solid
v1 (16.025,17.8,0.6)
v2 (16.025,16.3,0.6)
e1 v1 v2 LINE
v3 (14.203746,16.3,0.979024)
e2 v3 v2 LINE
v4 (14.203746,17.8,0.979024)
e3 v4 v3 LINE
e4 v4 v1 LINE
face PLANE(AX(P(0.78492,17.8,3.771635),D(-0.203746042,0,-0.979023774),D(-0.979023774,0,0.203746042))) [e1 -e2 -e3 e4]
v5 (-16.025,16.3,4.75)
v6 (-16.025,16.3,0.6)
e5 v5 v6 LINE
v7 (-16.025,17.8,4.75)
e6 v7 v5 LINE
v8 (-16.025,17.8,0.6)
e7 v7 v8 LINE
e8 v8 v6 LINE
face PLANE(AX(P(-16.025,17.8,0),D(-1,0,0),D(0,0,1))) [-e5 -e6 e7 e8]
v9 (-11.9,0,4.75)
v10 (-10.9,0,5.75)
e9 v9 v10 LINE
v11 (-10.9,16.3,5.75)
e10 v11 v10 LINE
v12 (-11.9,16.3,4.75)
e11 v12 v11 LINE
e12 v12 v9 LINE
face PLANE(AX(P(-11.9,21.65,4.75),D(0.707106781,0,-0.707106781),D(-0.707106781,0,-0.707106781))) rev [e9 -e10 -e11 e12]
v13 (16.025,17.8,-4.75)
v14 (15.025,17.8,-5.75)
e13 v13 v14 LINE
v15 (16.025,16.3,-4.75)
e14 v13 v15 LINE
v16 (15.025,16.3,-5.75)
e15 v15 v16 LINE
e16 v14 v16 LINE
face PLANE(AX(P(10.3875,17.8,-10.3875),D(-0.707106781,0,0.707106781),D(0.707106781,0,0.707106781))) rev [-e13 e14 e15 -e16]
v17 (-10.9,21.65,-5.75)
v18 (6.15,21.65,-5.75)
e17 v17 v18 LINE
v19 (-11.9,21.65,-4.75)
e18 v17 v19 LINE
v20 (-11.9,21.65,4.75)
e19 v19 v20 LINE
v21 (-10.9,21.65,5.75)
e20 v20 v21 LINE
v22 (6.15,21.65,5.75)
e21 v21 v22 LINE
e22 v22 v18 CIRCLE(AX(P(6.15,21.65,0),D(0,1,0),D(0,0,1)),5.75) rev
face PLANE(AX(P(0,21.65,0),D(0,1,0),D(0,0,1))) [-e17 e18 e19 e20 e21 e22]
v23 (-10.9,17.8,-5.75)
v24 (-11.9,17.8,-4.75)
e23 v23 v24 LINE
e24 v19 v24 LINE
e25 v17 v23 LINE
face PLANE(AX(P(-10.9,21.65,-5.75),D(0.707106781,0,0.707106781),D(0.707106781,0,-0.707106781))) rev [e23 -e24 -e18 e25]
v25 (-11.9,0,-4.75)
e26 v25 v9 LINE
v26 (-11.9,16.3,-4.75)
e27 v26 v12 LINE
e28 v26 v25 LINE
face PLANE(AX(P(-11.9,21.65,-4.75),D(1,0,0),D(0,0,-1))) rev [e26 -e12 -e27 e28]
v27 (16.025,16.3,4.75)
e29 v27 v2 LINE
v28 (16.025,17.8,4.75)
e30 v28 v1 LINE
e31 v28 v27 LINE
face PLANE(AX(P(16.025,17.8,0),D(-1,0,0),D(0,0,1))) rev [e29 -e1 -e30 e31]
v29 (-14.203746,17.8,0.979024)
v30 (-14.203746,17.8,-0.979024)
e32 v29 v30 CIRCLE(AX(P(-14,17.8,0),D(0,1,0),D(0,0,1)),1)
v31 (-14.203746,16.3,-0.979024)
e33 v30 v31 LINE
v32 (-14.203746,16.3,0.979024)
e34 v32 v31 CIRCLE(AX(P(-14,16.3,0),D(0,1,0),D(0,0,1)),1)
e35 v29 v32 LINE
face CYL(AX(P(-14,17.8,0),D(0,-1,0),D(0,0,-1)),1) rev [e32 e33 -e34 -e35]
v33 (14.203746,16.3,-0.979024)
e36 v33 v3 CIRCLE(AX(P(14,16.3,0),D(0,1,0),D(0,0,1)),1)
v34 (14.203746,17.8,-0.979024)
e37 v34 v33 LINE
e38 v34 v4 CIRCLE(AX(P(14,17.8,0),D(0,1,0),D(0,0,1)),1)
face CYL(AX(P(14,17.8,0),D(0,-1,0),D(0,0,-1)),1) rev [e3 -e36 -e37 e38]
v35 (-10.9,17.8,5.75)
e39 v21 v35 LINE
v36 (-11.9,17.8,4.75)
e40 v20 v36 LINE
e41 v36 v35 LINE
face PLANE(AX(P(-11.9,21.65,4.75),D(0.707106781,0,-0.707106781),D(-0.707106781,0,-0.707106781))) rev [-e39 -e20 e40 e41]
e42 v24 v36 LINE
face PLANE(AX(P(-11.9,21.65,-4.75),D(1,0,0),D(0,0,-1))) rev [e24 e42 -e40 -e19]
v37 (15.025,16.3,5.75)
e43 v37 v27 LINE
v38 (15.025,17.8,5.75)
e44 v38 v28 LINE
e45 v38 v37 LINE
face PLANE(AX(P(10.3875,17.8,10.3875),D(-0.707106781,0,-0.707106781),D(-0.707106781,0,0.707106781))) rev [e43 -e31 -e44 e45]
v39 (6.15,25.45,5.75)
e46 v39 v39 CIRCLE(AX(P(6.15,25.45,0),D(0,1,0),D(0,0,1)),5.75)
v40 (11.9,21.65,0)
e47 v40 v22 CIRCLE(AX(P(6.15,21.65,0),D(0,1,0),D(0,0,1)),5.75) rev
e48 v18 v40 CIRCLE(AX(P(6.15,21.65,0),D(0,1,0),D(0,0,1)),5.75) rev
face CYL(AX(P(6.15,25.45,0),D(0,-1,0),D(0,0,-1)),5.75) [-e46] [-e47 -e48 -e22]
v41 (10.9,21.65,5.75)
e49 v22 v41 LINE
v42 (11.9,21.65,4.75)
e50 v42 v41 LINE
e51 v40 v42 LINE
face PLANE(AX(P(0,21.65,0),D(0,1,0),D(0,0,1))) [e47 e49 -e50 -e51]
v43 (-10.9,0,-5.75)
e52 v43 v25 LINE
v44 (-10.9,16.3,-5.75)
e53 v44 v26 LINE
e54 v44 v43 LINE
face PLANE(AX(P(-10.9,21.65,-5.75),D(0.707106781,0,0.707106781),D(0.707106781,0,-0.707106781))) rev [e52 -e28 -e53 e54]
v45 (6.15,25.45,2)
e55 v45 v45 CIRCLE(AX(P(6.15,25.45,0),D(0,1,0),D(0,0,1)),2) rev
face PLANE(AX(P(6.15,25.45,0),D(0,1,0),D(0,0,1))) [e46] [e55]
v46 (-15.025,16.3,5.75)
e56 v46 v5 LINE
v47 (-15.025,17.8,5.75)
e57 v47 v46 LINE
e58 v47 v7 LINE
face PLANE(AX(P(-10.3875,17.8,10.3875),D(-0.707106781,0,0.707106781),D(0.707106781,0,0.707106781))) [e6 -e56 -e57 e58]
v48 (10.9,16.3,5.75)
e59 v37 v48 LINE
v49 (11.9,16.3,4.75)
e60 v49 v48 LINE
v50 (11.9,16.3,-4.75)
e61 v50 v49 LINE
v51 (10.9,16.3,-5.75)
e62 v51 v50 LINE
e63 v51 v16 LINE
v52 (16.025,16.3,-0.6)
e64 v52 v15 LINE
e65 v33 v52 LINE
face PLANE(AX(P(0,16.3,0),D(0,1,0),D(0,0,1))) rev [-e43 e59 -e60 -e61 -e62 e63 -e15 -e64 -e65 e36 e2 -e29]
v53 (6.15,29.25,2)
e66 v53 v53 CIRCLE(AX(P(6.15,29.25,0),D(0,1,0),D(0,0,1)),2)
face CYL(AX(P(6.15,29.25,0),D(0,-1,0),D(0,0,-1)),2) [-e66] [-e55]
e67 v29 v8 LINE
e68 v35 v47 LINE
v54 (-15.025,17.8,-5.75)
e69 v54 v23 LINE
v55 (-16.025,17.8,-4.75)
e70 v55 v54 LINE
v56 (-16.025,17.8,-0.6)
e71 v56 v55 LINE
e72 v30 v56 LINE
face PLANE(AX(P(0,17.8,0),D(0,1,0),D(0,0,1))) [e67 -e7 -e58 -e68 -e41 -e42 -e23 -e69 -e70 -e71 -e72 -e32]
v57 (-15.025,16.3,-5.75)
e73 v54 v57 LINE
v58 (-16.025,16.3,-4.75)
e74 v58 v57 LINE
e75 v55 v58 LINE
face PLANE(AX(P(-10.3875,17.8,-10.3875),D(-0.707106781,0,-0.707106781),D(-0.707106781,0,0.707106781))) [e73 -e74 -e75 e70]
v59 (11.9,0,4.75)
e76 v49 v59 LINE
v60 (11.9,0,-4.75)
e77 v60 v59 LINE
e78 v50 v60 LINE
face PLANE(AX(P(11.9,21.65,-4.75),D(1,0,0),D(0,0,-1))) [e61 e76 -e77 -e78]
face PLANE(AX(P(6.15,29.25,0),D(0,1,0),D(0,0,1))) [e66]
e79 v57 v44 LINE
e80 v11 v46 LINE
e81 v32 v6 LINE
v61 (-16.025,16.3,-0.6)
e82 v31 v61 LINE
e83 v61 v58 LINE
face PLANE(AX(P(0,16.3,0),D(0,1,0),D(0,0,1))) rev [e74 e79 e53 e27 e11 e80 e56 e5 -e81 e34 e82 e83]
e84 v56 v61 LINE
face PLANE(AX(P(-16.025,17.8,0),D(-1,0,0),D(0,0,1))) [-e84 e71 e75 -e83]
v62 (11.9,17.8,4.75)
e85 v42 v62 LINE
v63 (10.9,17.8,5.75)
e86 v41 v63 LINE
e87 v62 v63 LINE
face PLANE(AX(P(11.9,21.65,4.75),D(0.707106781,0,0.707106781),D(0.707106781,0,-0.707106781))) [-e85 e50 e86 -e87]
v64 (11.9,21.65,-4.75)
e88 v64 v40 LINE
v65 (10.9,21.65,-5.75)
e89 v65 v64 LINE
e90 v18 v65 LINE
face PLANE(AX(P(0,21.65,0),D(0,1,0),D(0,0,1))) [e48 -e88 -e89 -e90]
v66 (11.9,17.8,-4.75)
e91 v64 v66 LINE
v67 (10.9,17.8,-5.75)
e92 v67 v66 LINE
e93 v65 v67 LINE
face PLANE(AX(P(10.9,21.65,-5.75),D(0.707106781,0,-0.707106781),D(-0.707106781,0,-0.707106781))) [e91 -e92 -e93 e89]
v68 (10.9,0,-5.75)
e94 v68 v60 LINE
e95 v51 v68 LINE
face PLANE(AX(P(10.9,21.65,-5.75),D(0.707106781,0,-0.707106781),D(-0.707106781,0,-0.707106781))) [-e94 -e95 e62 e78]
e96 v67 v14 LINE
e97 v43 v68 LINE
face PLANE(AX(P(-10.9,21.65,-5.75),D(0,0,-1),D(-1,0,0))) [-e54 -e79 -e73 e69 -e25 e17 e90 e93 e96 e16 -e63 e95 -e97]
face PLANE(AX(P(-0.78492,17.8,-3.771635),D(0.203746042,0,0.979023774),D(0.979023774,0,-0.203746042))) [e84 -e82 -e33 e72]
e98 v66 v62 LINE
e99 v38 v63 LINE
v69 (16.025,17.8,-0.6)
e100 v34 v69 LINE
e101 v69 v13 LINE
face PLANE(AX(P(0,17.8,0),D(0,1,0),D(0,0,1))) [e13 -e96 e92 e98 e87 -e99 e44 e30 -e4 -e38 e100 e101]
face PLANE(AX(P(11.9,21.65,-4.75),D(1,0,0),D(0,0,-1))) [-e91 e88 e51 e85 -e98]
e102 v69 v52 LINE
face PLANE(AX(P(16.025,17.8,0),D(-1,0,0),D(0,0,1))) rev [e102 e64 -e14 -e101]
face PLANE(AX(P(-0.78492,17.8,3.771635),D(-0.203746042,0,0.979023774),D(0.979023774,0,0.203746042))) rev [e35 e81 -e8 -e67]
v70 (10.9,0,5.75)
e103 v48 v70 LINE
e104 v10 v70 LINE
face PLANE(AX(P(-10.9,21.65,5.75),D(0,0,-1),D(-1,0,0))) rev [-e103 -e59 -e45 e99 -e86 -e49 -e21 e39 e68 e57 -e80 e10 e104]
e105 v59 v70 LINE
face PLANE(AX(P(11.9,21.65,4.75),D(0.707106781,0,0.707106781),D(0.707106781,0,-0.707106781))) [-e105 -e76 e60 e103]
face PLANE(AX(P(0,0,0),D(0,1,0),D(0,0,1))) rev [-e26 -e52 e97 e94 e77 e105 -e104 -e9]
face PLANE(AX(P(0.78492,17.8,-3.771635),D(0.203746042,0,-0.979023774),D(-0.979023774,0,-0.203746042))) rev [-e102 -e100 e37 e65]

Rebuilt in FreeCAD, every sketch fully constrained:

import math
import FreeCAD as App
import Part
import Sketcher
from FreeCAD import Vector

doc = App.newDocument("Part")
body = doc.addObject("PartDesign::Body", "Body")

sketch1 = body.newObject("Sketcher::SketchObject", "Sketch")
sketch1.AttachmentSupport = (doc.getObject("XZ_Plane"), [""])
sketch1.MapMode = "FlatFace"
sketch1.addGeometry(Part.LineSegment(Vector(-10.9, 5.8, 0), Vector(10.9, 5.8, 0)), False)
sketch1.addGeometry(Part.LineSegment(Vector(10.9, 5.8, 0), Vector(11.9, 4.8, 0)), False)
sketch1.addGeometry(Part.LineSegment(Vector(11.9, 4.8, 0), Vector(11.9, -4.8, 0)), False)
sketch1.addGeometry(Part.LineSegment(Vector(11.9, -4.8, 0), Vector(10.9, -5.8, 0)), False)
sketch1.addGeometry(Part.LineSegment(Vector(10.9, -5.8, 0), Vector(-10.9, -5.8, 0)), False)
sketch1.addGeometry(Part.LineSegment(Vector(-10.9, -5.8, 0), Vector(-11.9, -4.8, 0)), False)
sketch1.addGeometry(Part.LineSegment(Vector(-11.9, -4.8, 0), Vector(-11.9, 4.8, 0)), False)
sketch1.addGeometry(Part.LineSegment(Vector(-11.9, 4.8, 0), Vector(-10.9, 5.8, 0)), False)
sketch1.addConstraint(Sketcher.Constraint("Coincident", 0, 2, 1, 1))
sketch1.addConstraint(Sketcher.Constraint("Coincident", 1, 2, 2, 1))
sketch1.addConstraint(Sketcher.Constraint("Coincident", 2, 2, 3, 1))
sketch1.addConstraint(Sketcher.Constraint("Coincident", 3, 2, 4, 1))
sketch1.addConstraint(Sketcher.Constraint("Coincident", 4, 2, 5, 1))
sketch1.addConstraint(Sketcher.Constraint("Coincident", 5, 2, 6, 1))
sketch1.addConstraint(Sketcher.Constraint("Coincident", 6, 2, 7, 1))
sketch1.addConstraint(Sketcher.Constraint("Coincident", 7, 2, 0, 1))
sketch1.addConstraint(Sketcher.Constraint("Horizontal", 0))
sketch1.addConstraint(Sketcher.Constraint("Vertical", 2))
sketch1.addConstraint(Sketcher.Constraint("Horizontal", 4))
sketch1.addConstraint(Sketcher.Constraint("Vertical", 6))
sketch1.addConstraint(Sketcher.Constraint("Symmetric", 0, 2, 4, 2, -1, 1))
sketch1.addConstraint(Sketcher.Constraint("Symmetric", 1, 2, 5, 2, -1, 1))
sketch1.addConstraint(Sketcher.Constraint("Perpendicular", 1, 3))
sketch1.addConstraint(Sketcher.Constraint("Perpendicular", 5, 7))
sketch1.addConstraint(Sketcher.Constraint("Horizontal", 2, 2, 5, 2))
sketch1.addConstraint(Sketcher.Constraint("Horizontal", 1, 2, 6, 2))
sketch1.addConstraint(Sketcher.Constraint("Vertical", 0, 2, 3, 2))
sketch1.addConstraint(Sketcher.Constraint("DistanceX", 0, 1, 0, 2, 21.8))
sketch1.addConstraint(Sketcher.Constraint("DistanceY", 2, 2, 2, 1, 9.5))
sketch1.addConstraint(Sketcher.Constraint("DistanceX", 0, 2, 1, 2, 1.0))
pad1 = body.newObject("PartDesign::Pad", "Pad")
pad1.Profile = sketch1
pad1.Length = 21.65
pad1.Reversed = True

sketch2 = body.newObject("Sketcher::SketchObject", "Sketch001")
sketch2.AttachmentSupport = (doc.getObject("XZ_Plane"), [""])
sketch2.MapMode = "FlatFace"
sketch2.addGeometry(Part.Circle(Vector(6, 0, 0), Vector(0, 0, 1), 6), False)
sketch2.addConstraint(Sketcher.Constraint("PointOnObject", 0, 3, -1))
sketch2.addConstraint(Sketcher.Constraint("Diameter", 0, 11.5))
sketch2.addConstraint(Sketcher.Constraint("DistanceX", -1, 1, 0, 3, 6.15))
pad2 = body.newObject("PartDesign::Pad", "Pad001")
pad2.Profile = sketch2
pad2.Length = 25.45
pad2.Reversed = True

sketch3 = body.newObject("Sketcher::SketchObject", "Sketch002")
sketch3.AttachmentSupport = (doc.getObject("XZ_Plane"), [""])
sketch3.MapMode = "FlatFace"
sketch3.addGeometry(Part.Circle(Vector(6.2, 0, 0), Vector(0, 0, 1), 2), False)
sketch3.addConstraint(Sketcher.Constraint("PointOnObject", 0, 3, -1))
sketch3.addConstraint(Sketcher.Constraint("Diameter", 0, 4.0))
sketch3.addConstraint(Sketcher.Constraint("DistanceX", -1, 1, 0, 3, 6.15))
pad3 = body.newObject("PartDesign::Pad", "Pad002")
pad3.Profile = sketch3
pad3.Length = 29.25
pad3.Reversed = True

sketch4 = body.newObject("Sketcher::SketchObject", "Sketch003")
sketch4.AttachmentSupport = (doc.getObject("XZ_Plane"), [""])
sketch4.MapMode = "FlatFace"
sketch4.AttachmentOffset = App.Placement(Vector(0, 0, -16.3), App.Rotation())
sketch4.addGeometry(Part.LineSegment(Vector(11.9, 4.8, 0), Vector(10.9, 5.8, 0)), False)
sketch4.addGeometry(Part.LineSegment(Vector(10.9, 5.8, 0), Vector(15, 5.8, 0)), False)
sketch4.addGeometry(Part.LineSegment(Vector(15, 5.8, 0), Vector(16, 4.8, 0)), False)
sketch4.addGeometry(Part.LineSegment(Vector(16, 4.8, 0), Vector(16, 0.6, 0)), False)
sketch4.addGeometry(Part.LineSegment(Vector(16, 0.6, 0), Vector(14.2, 1, 0)), False)
sketch4.addGeometry(Part.ArcOfCircle(Part.Circle(Vector(14, 0, 0), Vector(0, 0, 1), 1), math.radians(78), math.radians(282)), False)
sketch4.addGeometry(Part.LineSegment(Vector(14.2, -1, 0), Vector(16, -0.6, 0)), False)
sketch4.addGeometry(Part.LineSegment(Vector(16, -0.6, 0), Vector(16, -4.8, 0)), False)
sketch4.addGeometry(Part.LineSegment(Vector(16, -4.8, 0), Vector(15, -5.8, 0)), False)
sketch4.addGeometry(Part.LineSegment(Vector(15, -5.8, 0), Vector(10.9, -5.8, 0)), False)
sketch4.addGeometry(Part.LineSegment(Vector(10.9, -5.8, 0), Vector(11.9, -4.8, 0)), False)
sketch4.addGeometry(Part.LineSegment(Vector(11.9, -4.8, 0), Vector(11.9, 4.8, 0)), False)
sketch4.addGeometry(Part.LineSegment(Vector(-15, 5.8, 0), Vector(-10.9, 5.8, 0)), False)
sketch4.addGeometry(Part.LineSegment(Vector(-10.9, 5.8, 0), Vector(-11.9, 4.8, 0)), False)
sketch4.addGeometry(Part.LineSegment(Vector(-11.9, 4.8, 0), Vector(-11.9, -4.8, 0)), False)
sketch4.addGeometry(Part.LineSegment(Vector(-11.9, -4.8, 0), Vector(-10.9, -5.8, 0)), False)
sketch4.addGeometry(Part.LineSegment(Vector(-10.9, -5.8, 0), Vector(-15, -5.8, 0)), False)
sketch4.addGeometry(Part.LineSegment(Vector(-15, -5.8, 0), Vector(-16, -4.8, 0)), False)
sketch4.addGeometry(Part.LineSegment(Vector(-16, -4.8, 0), Vector(-16, -0.6, 0)), False)
sketch4.addGeometry(Part.LineSegment(Vector(-16, -0.6, 0), Vector(-14.2, -1, 0)), False)
sketch4.addGeometry(Part.ArcOfCircle(Part.Circle(Vector(-14, 0, 0), Vector(0, 0, 1), 1), math.radians(-102), math.radians(102)), False)
sketch4.addGeometry(Part.LineSegment(Vector(-14.2, 1, 0), Vector(-16, 0.6, 0)), False)
sketch4.addGeometry(Part.LineSegment(Vector(-16, 0.6, 0), Vector(-16, 4.8, 0)), False)
sketch4.addGeometry(Part.LineSegment(Vector(-16, 4.8, 0), Vector(-15, 5.8, 0)), False)
sketch4.addConstraint(Sketcher.Constraint("Coincident", 0, 2, 1, 1))
sketch4.addConstraint(Sketcher.Constraint("Coincident", 1, 2, 2, 1))
sketch4.addConstraint(Sketcher.Constraint("Coincident", 2, 2, 3, 1))
sketch4.addConstraint(Sketcher.Constraint("Coincident", 3, 2, 4, 1))
sketch4.addConstraint(Sketcher.Constraint("Tangent", 4, 2, 5, 1))
sketch4.addConstraint(Sketcher.Constraint("Tangent", 5, 2, 6, 1))
sketch4.addConstraint(Sketcher.Constraint("Coincident", 6, 2, 7, 1))
sketch4.addConstraint(Sketcher.Constraint("Coincident", 7, 2, 8, 1))
sketch4.addConstraint(Sketcher.Constraint("Coincident", 8, 2, 9, 1))
sketch4.addConstraint(Sketcher.Constraint("Coincident", 9, 2, 10, 1))
sketch4.addConstraint(Sketcher.Constraint("Coincident", 10, 2, 11, 1))
sketch4.addConstraint(Sketcher.Constraint("Coincident", 11, 2, 0, 1))
sketch4.addConstraint(Sketcher.Constraint("Coincident", 12, 2, 13, 1))
sketch4.addConstraint(Sketcher.Constraint("Coincident", 13, 2, 14, 1))
sketch4.addConstraint(Sketcher.Constraint("Coincident", 14, 2, 15, 1))
sketch4.addConstraint(Sketcher.Constraint("Coincident", 15, 2, 16, 1))
sketch4.addConstraint(Sketcher.Constraint("Coincident", 16, 2, 17, 1))
sketch4.addConstraint(Sketcher.Constraint("Coincident", 17, 2, 18, 1))
sketch4.addConstraint(Sketcher.Constraint("Coincident", 18, 2, 19, 1))
sketch4.addConstraint(Sketcher.Constraint("Tangent", 19, 2, 20, 1))
sketch4.addConstraint(Sketcher.Constraint("Tangent", 20, 2, 21, 1))
sketch4.addConstraint(Sketcher.Constraint("Coincident", 21, 2, 22, 1))
sketch4.addConstraint(Sketcher.Constraint("Coincident", 22, 2, 23, 1))
sketch4.addConstraint(Sketcher.Constraint("Coincident", 23, 2, 12, 1))
sketch4.addConstraint(Sketcher.Constraint("Horizontal", 1))
sketch4.addConstraint(Sketcher.Constraint("Vertical", 3))
sketch4.addConstraint(Sketcher.Constraint("Vertical", 7))
sketch4.addConstraint(Sketcher.Constraint("Horizontal", 9))
sketch4.addConstraint(Sketcher.Constraint("Vertical", 11))
sketch4.addConstraint(Sketcher.Constraint("Horizontal", 12))
sketch4.addConstraint(Sketcher.Constraint("Vertical", 14))
sketch4.addConstraint(Sketcher.Constraint("Horizontal", 16))
sketch4.addConstraint(Sketcher.Constraint("Vertical", 18))
sketch4.addConstraint(Sketcher.Constraint("Vertical", 22))
sketch4.addConstraint(Sketcher.Constraint("Equal", 5, 20))
sketch4.addConstraint(Sketcher.Constraint("Symmetric", 5, 3, 20, 3, -1, 1))
sketch4.addConstraint(Sketcher.Constraint("Symmetric", 9, 2, 12, 2, -1, 1))
sketch4.addConstraint(Sketcher.Constraint("Symmetric", 10, 2, 13, 2, -1, 1))
sketch4.addConstraint(Sketcher.Constraint("Symmetric", 0, 2, 15, 2, -1, 1))
sketch4.addConstraint(Sketcher.Constraint("Symmetric", 2, 2, 17, 2, -1, 1))
sketch4.addConstraint(Sketcher.Constraint("Symmetric", 6, 2, 21, 2, -1, 1))
sketch4.addConstraint(Sketcher.Constraint("Symmetric", 0, 2, 12, 2, -2))
sketch4.addConstraint(Sketcher.Constraint("Symmetric", 7, 2, 17, 2, -2))
sketch4.addConstraint(Sketcher.Constraint("Symmetric", 5, 2, 19, 2, -2))
sketch4.addConstraint(Sketcher.Constraint("Parallel", 0, 2))
sketch4.addConstraint(Sketcher.Constraint("Perpendicular", 2, 8))
sketch4.addConstraint(Sketcher.Constraint("Parallel", 8, 10))
sketch4.addConstraint(Sketcher.Constraint("Perpendicular", 13, 15))
sketch4.addConstraint(Sketcher.Constraint("Parallel", 15, 17))
sketch4.addConstraint(Sketcher.Constraint("Parallel", 4, 19))
sketch4.addConstraint(Sketcher.Constraint("Perpendicular", 17, 23))
sketch4.addConstraint(Sketcher.Constraint("Horizontal", 7, 2, 10, 2))
sketch4.addConstraint(Sketcher.Constraint("Horizontal", 2, 2, 11, 2))
sketch4.addConstraint(Sketcher.Constraint("Horizontal", 13, 2, 22, 2))
sketch4.addConstraint(Sketcher.Constraint("Radius", 5, 1.0))
sketch4.addConstraint(Sketcher.Constraint("DistanceY", 11, 1, 11, 2, 9.5))
sketch4.addConstraint(Sketcher.Constraint("DistanceX", -1, 1, 5, 3, 14.0))
sketch4.addConstraint(Sketcher.Constraint("DistanceX", 1, 2, 2, 2, 1.0))
sketch4.addConstraint(Sketcher.Constraint("DistanceY", 3, 2, 3, 1, 4.15))
sketch4.addConstraint(Sketcher.Constraint("DistanceX", -1, 1, 0, 2, 10.9))
sketch4.addConstraint(Sketcher.Constraint("DistanceX", 1, 1, 1, 2, 4.125))
pad4 = body.newObject("PartDesign::Pad", "Pad003")
pad4.Profile = sketch4
pad4.Length = 1.5
pad4.Reversed = True

doc.recompute()
